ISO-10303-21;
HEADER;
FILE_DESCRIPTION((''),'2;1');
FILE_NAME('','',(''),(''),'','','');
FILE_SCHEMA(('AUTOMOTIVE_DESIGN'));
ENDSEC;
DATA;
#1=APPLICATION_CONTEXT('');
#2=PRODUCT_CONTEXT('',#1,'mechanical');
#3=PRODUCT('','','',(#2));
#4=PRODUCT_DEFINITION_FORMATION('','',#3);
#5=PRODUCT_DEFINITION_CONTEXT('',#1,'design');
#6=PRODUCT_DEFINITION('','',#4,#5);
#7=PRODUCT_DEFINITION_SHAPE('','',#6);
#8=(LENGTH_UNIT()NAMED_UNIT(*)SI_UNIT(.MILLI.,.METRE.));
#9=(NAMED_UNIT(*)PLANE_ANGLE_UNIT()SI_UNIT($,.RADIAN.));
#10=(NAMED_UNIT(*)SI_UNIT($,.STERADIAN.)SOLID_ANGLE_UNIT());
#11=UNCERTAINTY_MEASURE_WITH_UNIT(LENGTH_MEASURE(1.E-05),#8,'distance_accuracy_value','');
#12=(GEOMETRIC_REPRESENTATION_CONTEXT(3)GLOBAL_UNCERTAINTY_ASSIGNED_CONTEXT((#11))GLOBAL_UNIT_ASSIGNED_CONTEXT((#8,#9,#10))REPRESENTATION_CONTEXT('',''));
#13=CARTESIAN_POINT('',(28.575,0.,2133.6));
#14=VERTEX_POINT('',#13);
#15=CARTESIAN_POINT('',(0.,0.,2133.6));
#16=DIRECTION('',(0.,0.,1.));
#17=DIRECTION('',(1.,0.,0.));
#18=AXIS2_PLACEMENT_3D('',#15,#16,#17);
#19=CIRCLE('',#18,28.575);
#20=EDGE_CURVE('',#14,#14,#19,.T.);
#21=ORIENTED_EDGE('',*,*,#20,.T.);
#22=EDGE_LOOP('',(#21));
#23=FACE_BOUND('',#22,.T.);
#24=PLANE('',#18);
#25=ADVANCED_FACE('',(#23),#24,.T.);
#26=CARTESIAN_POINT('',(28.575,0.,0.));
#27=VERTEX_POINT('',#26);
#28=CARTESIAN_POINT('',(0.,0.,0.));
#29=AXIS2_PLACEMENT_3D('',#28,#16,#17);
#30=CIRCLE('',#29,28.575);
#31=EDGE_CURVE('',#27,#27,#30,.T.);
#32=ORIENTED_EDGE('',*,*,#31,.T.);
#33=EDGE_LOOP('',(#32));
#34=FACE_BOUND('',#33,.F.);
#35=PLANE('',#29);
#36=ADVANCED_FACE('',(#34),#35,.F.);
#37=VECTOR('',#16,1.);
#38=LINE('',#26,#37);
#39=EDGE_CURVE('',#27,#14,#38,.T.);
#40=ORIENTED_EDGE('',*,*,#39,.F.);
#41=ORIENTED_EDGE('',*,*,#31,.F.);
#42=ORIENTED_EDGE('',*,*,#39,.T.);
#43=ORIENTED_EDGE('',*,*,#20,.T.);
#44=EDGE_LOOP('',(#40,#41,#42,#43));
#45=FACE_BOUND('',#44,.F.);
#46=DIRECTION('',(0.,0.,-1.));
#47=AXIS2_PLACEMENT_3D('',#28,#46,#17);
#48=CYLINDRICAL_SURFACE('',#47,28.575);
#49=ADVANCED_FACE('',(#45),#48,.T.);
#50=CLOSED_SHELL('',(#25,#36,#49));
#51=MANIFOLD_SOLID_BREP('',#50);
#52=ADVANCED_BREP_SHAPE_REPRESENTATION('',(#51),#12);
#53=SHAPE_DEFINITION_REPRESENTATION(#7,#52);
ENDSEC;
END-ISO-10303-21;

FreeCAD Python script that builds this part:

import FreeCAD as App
import Part
import Sketcher
Q = App.Units.Quantity

doc = App.newDocument("Part")
body = doc.addObject("PartDesign::Body", "Body")

# Sketch on XY plane
sketch1 = doc.addObject("Sketcher::SketchObject", "Sketch")
body.addObject(sketch1)
sketch1.AttachmentSupport = (doc.XY_Plane, [""])
sketch1.MapMode = "FlatFace"
sketch1.addGeometry(Part.Circle(App.Vector(0, 0, 0), App.Vector(0, 0, 1), 29), False)
sketch1.addConstraint(Sketcher.Constraint("Coincident", 0, 3, -1, 1))
sketch1.addConstraint(Sketcher.Constraint("Diameter", 0, Q("2.25 in")))
pad1 = doc.addObject("PartDesign::Pad", "Pad")
body.addObject(pad1)
pad1.Profile = sketch1
pad1.Length = Q("84 in")

doc.recompute()
